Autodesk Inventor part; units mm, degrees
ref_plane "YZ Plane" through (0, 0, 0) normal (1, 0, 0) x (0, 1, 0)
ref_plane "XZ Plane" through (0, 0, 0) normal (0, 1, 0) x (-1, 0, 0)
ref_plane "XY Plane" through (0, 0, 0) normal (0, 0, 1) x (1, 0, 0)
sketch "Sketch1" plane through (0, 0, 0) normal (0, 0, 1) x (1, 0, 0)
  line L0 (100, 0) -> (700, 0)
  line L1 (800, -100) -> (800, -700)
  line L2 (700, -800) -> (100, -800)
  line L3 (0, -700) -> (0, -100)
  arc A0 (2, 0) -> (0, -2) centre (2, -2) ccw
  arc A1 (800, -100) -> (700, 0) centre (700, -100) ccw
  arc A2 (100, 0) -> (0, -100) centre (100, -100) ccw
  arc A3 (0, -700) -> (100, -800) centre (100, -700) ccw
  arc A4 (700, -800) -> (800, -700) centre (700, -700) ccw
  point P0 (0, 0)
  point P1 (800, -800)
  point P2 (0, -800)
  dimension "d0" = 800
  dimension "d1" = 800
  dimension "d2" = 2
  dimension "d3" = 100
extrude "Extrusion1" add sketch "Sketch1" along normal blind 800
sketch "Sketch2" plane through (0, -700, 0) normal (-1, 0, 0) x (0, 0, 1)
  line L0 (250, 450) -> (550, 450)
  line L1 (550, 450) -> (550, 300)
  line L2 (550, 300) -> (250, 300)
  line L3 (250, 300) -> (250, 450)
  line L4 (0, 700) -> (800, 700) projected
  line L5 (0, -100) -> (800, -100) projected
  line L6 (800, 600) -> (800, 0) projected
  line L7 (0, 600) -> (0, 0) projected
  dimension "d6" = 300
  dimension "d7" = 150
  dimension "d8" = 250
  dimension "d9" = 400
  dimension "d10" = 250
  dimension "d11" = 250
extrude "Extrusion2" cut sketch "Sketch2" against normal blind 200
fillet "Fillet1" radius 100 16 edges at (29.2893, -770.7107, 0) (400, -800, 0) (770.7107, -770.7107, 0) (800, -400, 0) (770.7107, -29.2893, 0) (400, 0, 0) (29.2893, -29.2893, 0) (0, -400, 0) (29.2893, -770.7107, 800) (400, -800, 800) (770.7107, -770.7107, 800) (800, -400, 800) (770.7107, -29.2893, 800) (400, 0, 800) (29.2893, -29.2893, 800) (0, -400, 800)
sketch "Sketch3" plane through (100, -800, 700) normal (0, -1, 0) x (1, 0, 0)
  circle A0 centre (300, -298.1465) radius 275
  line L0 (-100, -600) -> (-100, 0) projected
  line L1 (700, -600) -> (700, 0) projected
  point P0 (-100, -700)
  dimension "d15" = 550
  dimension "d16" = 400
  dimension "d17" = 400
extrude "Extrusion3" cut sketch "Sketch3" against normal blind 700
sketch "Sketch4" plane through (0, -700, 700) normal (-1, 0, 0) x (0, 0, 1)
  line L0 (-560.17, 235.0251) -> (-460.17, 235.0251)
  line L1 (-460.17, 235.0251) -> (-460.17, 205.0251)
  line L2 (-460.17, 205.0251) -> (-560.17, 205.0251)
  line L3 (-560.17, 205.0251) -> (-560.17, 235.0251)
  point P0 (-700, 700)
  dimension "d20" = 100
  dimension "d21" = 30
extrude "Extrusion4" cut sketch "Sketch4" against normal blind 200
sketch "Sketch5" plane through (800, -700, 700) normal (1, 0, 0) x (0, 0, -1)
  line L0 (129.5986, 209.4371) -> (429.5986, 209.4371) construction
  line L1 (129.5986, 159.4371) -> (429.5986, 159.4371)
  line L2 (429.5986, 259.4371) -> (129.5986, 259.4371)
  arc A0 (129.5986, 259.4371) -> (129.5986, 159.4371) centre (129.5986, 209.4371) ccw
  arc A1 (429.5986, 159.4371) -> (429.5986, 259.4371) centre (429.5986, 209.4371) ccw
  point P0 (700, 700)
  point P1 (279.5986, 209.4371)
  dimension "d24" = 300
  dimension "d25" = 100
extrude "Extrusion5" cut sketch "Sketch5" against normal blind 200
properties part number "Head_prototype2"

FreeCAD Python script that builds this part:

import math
import FreeCAD as App
import Part
import Sketcher
from FreeCAD import Vector
Q = App.Units.Quantity


def edges_at(feature, points):
    """Names of the edges that pass closest to the given points."""
    edges = feature.Shape.Edges
    near = lambda p: min(range(len(edges)), key=lambda i: edges[i].distToShape(Part.Vertex(*p))[0])
    return sorted({f"Edge{near(p) + 1}" for p in points})


def add_polygon(sketch, points):
    """Adds a closed chain of lines whose ends are joined by coincident constraints."""
    first, n = sketch.GeometryCount, len(points)
    for a, b in zip(points, points[1:] + points[:1]):
        sketch.addGeometry(Part.LineSegment(App.Vector(*a, 0), App.Vector(*b, 0)), False)
    for i in range(n):
        sketch.addConstraint(Sketcher.Constraint("Coincident", first + i, 2, first + (i + 1) % n, 1))

doc = App.newDocument("Part")
body = doc.addObject("PartDesign::Body", "Body")

# Sketch on XY plane
sketch1 = doc.addObject("Sketcher::SketchObject", "Sketch")
body.addObject(sketch1)
sketch1.AttachmentSupport = (doc.XY_Plane, [""])
sketch1.MapMode = "FlatFace"
sketch1.addGeometry([
    Part.LineSegment(Vector(700, 0, 0), Vector(100, 0, 0)),  # 0
    Part.ArcOfCircle(Part.Circle(Vector(100, -100, 0), Vector(0, 0, 1), 100), math.radians(90), math.radians(180)),  # 1
    Part.LineSegment(Vector(0, -100, 0), Vector(0, -700, 0)),  # 2
    Part.ArcOfCircle(Part.Circle(Vector(100, -700, 0), Vector(0, 0, 1), 100), math.radians(180), math.radians(270)),  # 3
    Part.LineSegment(Vector(100, -800, 0), Vector(700, -800, 0)),  # 4
    Part.ArcOfCircle(Part.Circle(Vector(700, -700, 0), Vector(0, 0, 1), 100), math.radians(-90), math.radians(0)),  # 5
    Part.LineSegment(Vector(800, -700, 0), Vector(800, -100, 0)),  # 6
    Part.ArcOfCircle(Part.Circle(Vector(700, -100, 0), Vector(0, 0, 1), 100), math.radians(0), math.radians(90)),  # 7
], False)
sketch1.addConstraint([
    Sketcher.Constraint("Tangent", 0, 2, 1, 1),
    Sketcher.Constraint("Tangent", 1, 2, 2, 1),
    Sketcher.Constraint("Tangent", 2, 2, 3, 1),
    Sketcher.Constraint("Tangent", 3, 2, 4, 1),
    Sketcher.Constraint("Tangent", 4, 2, 5, 1),
    Sketcher.Constraint("Tangent", 5, 2, 6, 1),
    Sketcher.Constraint("Tangent", 6, 2, 7, 1),
    Sketcher.Constraint("Tangent", 7, 2, 0, 1),
    Sketcher.Constraint("Horizontal", 0),
    Sketcher.Constraint("Vertical", 2),
    Sketcher.Constraint("Horizontal", 4),
    Sketcher.Constraint("Vertical", 6),
    Sketcher.Constraint("Equal", 1, 3),
    Sketcher.Constraint("Equal", 3, 5),
    Sketcher.Constraint("Equal", 5, 7),
    Sketcher.Constraint("PointOnObject", 0, 2, -1),
    Sketcher.Constraint("PointOnObject", 1, 2, -2),
    Sketcher.Constraint("Equal", 4, 2),
    Sketcher.Constraint("Radius", 1, Q("100 mm")),
    Sketcher.Constraint("DistanceY", 3, 2, -1, 1, Q("800 mm")),
])
pad1 = doc.addObject("PartDesign::Pad", "Pad")
body.addObject(pad1)
pad1.Profile = sketch1
pad1.Length = 800

# Sketch on YZ plane
sketch2 = doc.addObject("Sketcher::SketchObject", "Sketch001")
body.addObject(sketch2)
sketch2.AttachmentSupport = (doc.YZ_Plane, [""])
sketch2.MapMode = "FlatFace"
add_polygon(sketch2, [(-250, 550), (-250, 250), (-400, 250), (-400, 550)])  # lines 0-3
sketch2.addConstraint([
    Sketcher.Constraint("Vertical", 0),
    Sketcher.Constraint("Horizontal", 1),
    Sketcher.Constraint("Vertical", 2),
    Sketcher.Constraint("Horizontal", 3),
    Sketcher.Constraint("DistanceX", 1, 2, 1, 1, Q("150 mm")),
    Sketcher.Constraint("DistanceY", 0, 2, 0, 1, Q("300 mm")),
    Sketcher.Constraint("DistanceX", 0, 2, -1, 1, Q("250 mm")),
    Sketcher.Constraint("DistanceY", -1, 1, 0, 2, Q("250 mm")),
])
pocket1 = doc.addObject("PartDesign::Pocket", "Pocket")
body.addObject(pocket1)
pocket1.Profile = sketch2
pocket1.Length = 200
pocket1.Reversed = True
doc.recompute()

fillet = doc.addObject("PartDesign::Fillet", "Fillet")
body.addObject(fillet)
fillet.Base = (pocket1, edges_at(pocket1, [
    (29.289, -770.711, 0),
    (400, -800, 0),
    (770.711, -770.711, 0),
    (800, -400, 0),
    (770.711, -29.289, 0),
    (400, 0, 0),
    (29.289, -29.289, 0),
    (0, -400, 0),
    (29.289, -770.711, 800),
    (400, -800, 800),
    (770.711, -770.711, 800),
    (800, -400, 800),
    (770.711, -29.289, 800),
    (400, 0, 800),
    (29.289, -29.289, 800),
    (0, -400, 800),
]))
fillet.Radius = 100

# Sketch on XZ plane
sketch3 = doc.addObject("Sketcher::SketchObject", "Sketch002")
body.addObject(sketch3)
sketch3.AttachmentSupport = (doc.XZ_Plane, [""])
sketch3.MapMode = "FlatFace"
sketch3.AttachmentOffset = App.Placement(Vector(0, 0, 800), App.Rotation())
sketch3.addGeometry(Part.Circle(Vector(400, 402, 0), Vector(0, 0, 1), 275), False)
sketch3.addConstraint([
    Sketcher.Constraint("Diameter", 0, Q("550 mm")),
    Sketcher.Constraint("DistanceX", -1, 1, 0, 3, Q("400 mm")),
    Sketcher.Constraint("DistanceY", -1, 1, 0, 3, Q("401.8535 mm")),
])
pocket2 = doc.addObject("PartDesign::Pocket", "Pocket001")
body.addObject(pocket2)
pocket2.Profile = sketch3
pocket2.Length = 700

# Sketch on YZ plane
sketch4 = doc.addObject("Sketcher::SketchObject", "Sketch003")
body.addObject(sketch4)
sketch4.AttachmentSupport = (doc.YZ_Plane, [""])
sketch4.MapMode = "FlatFace"
add_polygon(sketch4, [(-465, 240), (-465, 140), (-495, 140), (-495, 240)])  # lines 0-3
sketch4.addConstraint([
    Sketcher.Constraint("Vertical", 0),
    Sketcher.Constraint("Horizontal", 1),
    Sketcher.Constraint("Vertical", 2),
    Sketcher.Constraint("Horizontal", 3),
    Sketcher.Constraint("DistanceX", 1, 2, 1, 1, Q("30 mm")),
    Sketcher.Constraint("DistanceY", 0, 2, 0, 1, Q("100 mm")),
    Sketcher.Constraint("DistanceY", -1, 1, 0, 2, Q("139.83 mm")),
    Sketcher.Constraint("DistanceX", 0, 2, -1, 1, Q("464.975 mm")),
])
pocket3 = doc.addObject("PartDesign::Pocket", "Pocket002")
body.addObject(pocket3)
pocket3.Profile = sketch4
pocket3.Length = 200
pocket3.Reversed = True

# Sketch on YZ plane
sketch5 = doc.addObject("Sketcher::SketchObject", "Sketch004")
body.addObject(sketch5)
sketch5.AttachmentSupport = (doc.YZ_Plane, [""])
sketch5.MapMode = "FlatFace"
sketch5.AttachmentOffset = App.Placement(Vector(0, 0, 800), App.Rotation())
sketch5.addGeometry([
    Part.ArcOfCircle(Part.Circle(Vector(-491, 570, 0), Vector(0, 0, 1), 50), math.radians(0), math.radians(180)),
    Part.LineSegment(Vector(-541, 570, 0), Vector(-541, 270, 0)),
    Part.ArcOfCircle(Part.Circle(Vector(-491, 270, 0), Vector(0, 0, 1), 50), math.radians(180), math.radians(360)),
    Part.LineSegment(Vector(-441, 270, 0), Vector(-441, 570, 0)),
], False)
sketch5.addConstraint([
    Sketcher.Constraint("Tangent", 0, 2, 1, 1),
    Sketcher.Constraint("Tangent", 1, 2, 2, 1),
    Sketcher.Constraint("Tangent", 2, 2, 3, 1),
    Sketcher.Constraint("Tangent", 3, 2, 0, 1),
    Sketcher.Constraint("Vertical", 1),
    Sketcher.Constraint("Vertical", 3),
    Sketcher.Constraint("Radius", 0, Q("50 mm")),
    Sketcher.Constraint("DistanceY", 1, 2, 1, 1, Q("300 mm")),
    Sketcher.Constraint("DistanceX", 0, 3, -1, 1, Q("490.563 mm")),
    Sketcher.Constraint("DistanceY", -1, 1, 0, 3, Q("570.4014 mm")),
])
pocket4 = doc.addObject("PartDesign::Pocket", "Pocket003")
body.addObject(pocket4)
pocket4.Profile = sketch5
pocket4.Length = 200

doc.recompute()
